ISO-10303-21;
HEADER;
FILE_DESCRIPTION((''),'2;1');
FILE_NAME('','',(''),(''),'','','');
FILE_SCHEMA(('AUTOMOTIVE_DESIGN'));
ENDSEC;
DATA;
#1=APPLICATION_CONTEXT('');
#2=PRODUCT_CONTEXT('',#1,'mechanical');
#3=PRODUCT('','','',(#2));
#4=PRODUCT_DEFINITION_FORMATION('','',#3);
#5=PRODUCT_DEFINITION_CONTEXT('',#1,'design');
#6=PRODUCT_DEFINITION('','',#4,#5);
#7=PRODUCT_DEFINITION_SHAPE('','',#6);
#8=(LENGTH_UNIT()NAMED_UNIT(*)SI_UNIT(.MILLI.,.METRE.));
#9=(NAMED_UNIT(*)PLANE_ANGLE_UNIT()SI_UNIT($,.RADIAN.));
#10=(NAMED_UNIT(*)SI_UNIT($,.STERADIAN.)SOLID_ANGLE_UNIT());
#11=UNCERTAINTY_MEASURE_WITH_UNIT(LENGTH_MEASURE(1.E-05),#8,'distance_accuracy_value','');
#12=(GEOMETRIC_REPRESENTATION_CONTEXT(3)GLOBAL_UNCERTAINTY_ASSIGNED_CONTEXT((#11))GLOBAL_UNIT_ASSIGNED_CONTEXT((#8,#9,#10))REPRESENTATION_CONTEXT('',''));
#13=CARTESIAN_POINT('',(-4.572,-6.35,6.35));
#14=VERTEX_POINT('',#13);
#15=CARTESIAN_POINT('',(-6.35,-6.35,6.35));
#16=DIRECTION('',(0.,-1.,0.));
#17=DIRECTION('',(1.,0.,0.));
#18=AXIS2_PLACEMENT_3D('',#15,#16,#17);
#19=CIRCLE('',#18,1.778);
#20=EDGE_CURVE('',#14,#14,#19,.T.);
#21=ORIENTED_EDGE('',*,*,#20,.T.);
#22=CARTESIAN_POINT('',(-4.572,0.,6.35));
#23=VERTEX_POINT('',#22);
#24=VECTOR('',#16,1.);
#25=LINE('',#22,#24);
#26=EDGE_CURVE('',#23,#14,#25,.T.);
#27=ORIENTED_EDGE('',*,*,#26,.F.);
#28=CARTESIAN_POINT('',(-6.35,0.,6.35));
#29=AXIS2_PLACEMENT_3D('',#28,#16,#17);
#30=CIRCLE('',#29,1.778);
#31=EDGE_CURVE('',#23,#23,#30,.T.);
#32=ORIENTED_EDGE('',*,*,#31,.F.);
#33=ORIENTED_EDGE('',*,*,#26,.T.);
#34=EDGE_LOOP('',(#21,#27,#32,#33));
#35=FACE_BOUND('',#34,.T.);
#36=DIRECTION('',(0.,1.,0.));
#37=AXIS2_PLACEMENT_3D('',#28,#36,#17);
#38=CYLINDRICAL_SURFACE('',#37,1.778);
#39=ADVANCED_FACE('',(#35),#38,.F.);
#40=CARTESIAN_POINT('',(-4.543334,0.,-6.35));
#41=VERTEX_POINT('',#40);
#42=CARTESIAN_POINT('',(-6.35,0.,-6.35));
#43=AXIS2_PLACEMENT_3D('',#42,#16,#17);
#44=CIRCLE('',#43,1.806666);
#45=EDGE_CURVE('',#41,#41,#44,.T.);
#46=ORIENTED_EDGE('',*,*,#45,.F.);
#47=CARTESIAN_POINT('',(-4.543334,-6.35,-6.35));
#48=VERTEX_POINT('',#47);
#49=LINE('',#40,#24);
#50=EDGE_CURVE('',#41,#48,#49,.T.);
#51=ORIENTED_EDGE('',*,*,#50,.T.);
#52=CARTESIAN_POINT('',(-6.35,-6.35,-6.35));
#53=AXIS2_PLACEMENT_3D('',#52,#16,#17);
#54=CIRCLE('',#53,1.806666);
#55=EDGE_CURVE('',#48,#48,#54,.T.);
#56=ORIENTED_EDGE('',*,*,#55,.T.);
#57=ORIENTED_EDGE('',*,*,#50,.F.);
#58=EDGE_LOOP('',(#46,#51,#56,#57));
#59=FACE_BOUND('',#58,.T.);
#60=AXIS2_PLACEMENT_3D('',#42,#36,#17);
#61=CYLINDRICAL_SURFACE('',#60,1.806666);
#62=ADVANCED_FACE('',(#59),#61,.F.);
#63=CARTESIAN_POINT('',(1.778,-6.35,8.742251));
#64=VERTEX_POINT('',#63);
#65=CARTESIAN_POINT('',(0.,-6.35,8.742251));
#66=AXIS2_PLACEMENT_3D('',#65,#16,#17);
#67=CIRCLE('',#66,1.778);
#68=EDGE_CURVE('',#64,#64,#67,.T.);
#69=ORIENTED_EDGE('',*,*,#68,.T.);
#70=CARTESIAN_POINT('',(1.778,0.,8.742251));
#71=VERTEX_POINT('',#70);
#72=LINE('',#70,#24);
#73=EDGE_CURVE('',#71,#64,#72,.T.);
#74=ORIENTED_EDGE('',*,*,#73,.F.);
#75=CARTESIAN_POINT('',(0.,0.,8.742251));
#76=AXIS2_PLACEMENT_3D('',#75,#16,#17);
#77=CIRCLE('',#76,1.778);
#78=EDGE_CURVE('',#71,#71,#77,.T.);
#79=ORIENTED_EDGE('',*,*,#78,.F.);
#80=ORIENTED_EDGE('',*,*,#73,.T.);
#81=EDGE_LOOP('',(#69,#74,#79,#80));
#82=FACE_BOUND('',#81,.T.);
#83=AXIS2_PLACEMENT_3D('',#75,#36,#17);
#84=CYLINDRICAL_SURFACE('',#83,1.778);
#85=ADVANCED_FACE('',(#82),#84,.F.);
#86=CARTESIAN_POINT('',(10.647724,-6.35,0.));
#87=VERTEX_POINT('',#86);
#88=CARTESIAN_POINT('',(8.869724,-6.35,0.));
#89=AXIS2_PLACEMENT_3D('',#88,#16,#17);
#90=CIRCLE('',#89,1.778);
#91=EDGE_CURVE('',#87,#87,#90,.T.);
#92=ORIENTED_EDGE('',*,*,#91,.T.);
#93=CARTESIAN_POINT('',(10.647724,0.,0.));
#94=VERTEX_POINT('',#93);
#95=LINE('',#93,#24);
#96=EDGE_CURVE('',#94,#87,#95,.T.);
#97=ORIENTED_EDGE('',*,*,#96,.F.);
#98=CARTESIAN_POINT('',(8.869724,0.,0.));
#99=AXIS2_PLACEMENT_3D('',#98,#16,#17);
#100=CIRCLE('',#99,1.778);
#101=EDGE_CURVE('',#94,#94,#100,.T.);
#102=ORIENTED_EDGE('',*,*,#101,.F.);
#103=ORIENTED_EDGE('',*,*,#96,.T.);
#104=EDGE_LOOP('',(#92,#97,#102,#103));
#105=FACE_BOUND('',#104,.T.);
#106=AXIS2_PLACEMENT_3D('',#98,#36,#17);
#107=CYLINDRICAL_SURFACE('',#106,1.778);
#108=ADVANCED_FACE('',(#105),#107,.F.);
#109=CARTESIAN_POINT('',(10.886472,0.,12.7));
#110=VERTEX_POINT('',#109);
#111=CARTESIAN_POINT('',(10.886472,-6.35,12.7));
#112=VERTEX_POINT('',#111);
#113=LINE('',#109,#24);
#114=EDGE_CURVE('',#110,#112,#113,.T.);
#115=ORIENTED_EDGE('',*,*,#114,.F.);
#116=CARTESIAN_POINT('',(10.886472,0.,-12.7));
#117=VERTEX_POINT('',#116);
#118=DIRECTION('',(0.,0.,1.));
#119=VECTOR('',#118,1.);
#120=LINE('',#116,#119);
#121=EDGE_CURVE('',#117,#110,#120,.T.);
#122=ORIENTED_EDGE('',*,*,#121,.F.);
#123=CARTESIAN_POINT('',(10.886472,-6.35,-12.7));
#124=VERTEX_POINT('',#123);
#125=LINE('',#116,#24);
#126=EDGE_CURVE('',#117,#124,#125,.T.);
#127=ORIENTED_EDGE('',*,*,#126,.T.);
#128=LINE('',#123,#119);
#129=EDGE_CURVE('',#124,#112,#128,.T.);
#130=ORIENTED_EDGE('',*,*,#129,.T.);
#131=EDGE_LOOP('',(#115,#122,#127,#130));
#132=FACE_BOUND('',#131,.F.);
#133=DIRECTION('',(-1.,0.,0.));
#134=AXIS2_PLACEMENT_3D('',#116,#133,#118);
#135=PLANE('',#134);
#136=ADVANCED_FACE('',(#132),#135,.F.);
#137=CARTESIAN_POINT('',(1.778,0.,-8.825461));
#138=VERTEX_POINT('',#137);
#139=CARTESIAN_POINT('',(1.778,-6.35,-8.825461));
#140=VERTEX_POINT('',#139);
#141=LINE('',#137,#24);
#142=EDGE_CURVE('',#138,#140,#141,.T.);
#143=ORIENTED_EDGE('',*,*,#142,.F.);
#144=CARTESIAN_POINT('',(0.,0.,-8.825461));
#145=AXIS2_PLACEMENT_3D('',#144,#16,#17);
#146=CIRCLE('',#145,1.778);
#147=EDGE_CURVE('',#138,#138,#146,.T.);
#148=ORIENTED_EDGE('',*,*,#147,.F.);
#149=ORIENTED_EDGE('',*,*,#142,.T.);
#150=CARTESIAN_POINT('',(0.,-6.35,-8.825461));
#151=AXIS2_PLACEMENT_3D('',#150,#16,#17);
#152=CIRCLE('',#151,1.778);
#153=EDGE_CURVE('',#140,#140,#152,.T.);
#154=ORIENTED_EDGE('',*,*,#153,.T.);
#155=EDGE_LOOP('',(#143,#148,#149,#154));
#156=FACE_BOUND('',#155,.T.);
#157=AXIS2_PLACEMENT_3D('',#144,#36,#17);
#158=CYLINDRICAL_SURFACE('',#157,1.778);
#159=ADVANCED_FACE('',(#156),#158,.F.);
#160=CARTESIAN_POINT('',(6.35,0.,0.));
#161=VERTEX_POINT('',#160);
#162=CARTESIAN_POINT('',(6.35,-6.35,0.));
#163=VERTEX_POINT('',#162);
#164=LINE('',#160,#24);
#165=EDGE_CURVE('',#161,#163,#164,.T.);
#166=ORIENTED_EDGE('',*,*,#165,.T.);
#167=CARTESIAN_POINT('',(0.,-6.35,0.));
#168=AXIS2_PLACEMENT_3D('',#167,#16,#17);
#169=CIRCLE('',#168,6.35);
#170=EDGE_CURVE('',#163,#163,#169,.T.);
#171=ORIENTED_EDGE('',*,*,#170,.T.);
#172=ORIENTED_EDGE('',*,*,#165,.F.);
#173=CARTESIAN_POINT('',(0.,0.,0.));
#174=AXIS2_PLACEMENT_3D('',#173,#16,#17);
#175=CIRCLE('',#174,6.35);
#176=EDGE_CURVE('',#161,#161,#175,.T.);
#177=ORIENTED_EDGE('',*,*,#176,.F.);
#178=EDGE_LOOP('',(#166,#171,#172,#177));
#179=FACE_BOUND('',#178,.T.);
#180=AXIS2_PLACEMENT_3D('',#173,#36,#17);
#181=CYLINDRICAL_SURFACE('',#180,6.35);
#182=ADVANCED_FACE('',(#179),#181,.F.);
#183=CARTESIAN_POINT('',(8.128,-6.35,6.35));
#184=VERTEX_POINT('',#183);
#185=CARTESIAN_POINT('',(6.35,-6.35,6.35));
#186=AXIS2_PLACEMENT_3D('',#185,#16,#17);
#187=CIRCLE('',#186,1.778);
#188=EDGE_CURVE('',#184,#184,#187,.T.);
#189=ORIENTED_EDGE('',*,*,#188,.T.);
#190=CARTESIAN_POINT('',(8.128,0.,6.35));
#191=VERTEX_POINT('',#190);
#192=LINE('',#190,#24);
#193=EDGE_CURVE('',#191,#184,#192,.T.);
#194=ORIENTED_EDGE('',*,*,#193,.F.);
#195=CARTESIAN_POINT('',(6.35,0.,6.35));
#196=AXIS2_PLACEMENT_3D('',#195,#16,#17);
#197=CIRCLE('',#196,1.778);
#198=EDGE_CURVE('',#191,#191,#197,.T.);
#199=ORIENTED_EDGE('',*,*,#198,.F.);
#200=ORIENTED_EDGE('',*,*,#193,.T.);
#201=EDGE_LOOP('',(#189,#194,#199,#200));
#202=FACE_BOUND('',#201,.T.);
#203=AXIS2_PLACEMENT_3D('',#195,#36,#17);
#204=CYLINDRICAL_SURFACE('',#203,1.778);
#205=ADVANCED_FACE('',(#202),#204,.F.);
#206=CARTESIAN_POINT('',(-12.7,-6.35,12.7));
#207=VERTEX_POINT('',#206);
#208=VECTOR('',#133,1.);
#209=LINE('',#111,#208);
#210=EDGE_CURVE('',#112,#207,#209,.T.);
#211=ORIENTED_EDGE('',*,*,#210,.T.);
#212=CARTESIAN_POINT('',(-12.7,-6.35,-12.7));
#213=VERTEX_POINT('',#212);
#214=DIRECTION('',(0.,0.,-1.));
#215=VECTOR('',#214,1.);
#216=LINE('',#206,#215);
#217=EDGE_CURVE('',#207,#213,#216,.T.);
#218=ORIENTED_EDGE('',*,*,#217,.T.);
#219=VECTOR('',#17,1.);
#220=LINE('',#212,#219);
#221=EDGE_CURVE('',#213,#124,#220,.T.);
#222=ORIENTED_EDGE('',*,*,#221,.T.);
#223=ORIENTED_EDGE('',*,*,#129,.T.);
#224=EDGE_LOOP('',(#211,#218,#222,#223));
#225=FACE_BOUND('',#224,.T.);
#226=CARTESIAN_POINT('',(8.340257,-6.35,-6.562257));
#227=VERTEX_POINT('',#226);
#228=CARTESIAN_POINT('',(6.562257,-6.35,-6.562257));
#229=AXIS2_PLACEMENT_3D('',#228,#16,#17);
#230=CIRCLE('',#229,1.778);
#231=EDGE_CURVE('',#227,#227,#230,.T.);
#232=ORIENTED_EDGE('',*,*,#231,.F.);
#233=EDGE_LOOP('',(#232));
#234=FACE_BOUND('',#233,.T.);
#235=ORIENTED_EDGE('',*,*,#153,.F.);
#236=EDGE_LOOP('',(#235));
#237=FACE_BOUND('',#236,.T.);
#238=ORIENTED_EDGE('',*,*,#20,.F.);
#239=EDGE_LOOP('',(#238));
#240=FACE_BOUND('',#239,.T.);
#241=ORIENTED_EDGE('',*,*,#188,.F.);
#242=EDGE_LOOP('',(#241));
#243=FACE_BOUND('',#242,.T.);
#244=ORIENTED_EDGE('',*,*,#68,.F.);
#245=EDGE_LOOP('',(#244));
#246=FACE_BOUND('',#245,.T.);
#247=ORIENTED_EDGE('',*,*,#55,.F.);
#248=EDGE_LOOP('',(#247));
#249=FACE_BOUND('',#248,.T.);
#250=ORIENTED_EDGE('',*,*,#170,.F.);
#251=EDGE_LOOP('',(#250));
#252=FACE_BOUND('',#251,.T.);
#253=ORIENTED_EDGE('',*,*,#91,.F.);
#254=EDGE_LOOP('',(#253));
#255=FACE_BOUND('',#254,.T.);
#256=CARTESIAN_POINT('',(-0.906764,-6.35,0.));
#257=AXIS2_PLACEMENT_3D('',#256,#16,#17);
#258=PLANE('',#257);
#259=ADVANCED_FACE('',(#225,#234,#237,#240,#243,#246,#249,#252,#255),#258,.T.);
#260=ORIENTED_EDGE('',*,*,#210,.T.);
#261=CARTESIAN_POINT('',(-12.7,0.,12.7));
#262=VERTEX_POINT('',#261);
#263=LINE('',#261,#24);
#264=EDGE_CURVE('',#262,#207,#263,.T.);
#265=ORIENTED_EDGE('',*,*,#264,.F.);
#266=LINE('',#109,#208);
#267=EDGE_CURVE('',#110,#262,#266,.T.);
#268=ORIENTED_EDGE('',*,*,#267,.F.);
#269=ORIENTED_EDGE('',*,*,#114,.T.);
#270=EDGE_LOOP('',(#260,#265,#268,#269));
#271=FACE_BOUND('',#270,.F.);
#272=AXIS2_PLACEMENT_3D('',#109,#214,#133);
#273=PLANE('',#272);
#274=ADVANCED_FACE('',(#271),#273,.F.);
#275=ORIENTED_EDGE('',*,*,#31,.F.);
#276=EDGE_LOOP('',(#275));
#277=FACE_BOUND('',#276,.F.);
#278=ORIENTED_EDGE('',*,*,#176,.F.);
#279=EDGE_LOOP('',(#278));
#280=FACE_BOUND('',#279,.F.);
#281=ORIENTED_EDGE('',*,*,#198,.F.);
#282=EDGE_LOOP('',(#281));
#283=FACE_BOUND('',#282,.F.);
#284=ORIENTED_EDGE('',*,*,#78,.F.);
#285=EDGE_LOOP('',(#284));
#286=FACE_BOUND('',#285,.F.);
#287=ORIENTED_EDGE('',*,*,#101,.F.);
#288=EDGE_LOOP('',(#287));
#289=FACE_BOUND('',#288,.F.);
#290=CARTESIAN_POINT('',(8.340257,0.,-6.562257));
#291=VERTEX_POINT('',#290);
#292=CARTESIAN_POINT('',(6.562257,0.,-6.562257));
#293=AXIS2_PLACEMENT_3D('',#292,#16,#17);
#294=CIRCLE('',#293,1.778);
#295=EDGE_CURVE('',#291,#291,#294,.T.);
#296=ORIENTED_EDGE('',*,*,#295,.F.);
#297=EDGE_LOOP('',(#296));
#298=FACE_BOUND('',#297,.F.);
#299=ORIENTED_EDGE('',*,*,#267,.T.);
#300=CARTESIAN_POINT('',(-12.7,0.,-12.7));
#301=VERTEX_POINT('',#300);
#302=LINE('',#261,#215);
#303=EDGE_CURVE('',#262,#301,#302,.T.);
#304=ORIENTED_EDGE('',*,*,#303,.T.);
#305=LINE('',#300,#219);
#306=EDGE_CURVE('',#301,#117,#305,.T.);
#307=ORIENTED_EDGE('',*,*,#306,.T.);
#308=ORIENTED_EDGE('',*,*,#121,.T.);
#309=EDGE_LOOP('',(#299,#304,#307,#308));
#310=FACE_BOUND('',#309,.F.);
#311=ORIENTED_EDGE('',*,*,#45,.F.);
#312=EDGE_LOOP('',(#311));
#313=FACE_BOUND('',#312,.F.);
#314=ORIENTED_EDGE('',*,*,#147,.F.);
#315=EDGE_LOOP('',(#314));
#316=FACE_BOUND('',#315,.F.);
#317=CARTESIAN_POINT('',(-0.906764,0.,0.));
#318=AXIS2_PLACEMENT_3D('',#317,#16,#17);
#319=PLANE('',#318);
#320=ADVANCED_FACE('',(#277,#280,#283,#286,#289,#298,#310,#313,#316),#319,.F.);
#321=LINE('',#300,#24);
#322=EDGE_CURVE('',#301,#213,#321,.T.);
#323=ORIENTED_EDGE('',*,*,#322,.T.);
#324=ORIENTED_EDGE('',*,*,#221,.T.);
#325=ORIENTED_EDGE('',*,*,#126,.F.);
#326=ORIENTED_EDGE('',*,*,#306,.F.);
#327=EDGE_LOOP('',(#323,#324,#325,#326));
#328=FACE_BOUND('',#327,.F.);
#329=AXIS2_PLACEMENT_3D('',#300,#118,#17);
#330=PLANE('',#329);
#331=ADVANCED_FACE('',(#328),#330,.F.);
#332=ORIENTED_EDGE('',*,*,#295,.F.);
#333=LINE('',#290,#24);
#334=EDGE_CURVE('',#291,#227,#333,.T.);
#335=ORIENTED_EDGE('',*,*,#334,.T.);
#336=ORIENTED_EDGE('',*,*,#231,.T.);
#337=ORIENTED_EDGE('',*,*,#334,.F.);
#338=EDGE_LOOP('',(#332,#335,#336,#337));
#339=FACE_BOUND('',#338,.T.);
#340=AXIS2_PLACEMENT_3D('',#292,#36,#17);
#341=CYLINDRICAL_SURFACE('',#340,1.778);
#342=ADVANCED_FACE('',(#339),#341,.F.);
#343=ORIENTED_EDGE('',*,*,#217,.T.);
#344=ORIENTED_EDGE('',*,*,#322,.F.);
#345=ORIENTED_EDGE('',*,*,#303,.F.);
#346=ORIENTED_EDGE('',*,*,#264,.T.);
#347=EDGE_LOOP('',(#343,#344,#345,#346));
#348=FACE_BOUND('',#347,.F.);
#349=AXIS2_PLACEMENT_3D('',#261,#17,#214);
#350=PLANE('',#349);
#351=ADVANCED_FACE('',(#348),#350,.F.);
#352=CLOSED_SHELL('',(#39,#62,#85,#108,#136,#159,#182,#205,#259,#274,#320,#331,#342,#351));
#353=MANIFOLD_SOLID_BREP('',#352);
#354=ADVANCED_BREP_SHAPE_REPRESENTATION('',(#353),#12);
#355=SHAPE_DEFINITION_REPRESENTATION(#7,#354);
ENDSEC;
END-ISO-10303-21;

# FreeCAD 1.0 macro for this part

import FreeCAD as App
import Part
import Sketcher
Q = App.Units.Quantity


def add_polygon(sketch, points):
    """Adds a closed chain of lines whose ends are joined by coincident constraints."""
    first, n = sketch.GeometryCount, len(points)
    for a, b in zip(points, points[1:] + points[:1]):
        sketch.addGeometry(Part.LineSegment(App.Vector(*a, 0), App.Vector(*b, 0)), False)
    for i in range(n):
        sketch.addConstraint(Sketcher.Constraint("Coincident", first + i, 2, first + (i + 1) % n, 1))

doc = App.newDocument("Part")
body = doc.addObject("PartDesign::Body", "Body")

sketch1 = body.newObject("Sketcher::SketchObject", "Sketch")
sketch1.AttachmentSupport = (doc.getObject("XZ_Plane"), [""])
sketch1.MapMode = "FlatFace"
add_polygon(sketch1, [(-12.7, 12.7), (-12.7, -12.7), (10.9, -12.7), (10.9, 12.7)])
sketch1.addGeometry(Part.Circle(App.Vector(-6.3, -6.3, 0), App.Vector(0, 0, 1), 1.8), False)
sketch1.addGeometry(Part.Circle(App.Vector(0, -8.8, 0), App.Vector(0, 0, 1), 1.8), False)
sketch1.addGeometry(Part.Circle(App.Vector(6.6, -6.6, 0), App.Vector(0, 0, 1), 1.8), False)
sketch1.addGeometry(Part.Circle(App.Vector(0, 0, 0), App.Vector(0, 0, 1), 6.3), False)
sketch1.addGeometry(Part.Circle(App.Vector(-6.3, 6.3, 0), App.Vector(0, 0, 1), 1.8), False)
sketch1.addGeometry(Part.Circle(App.Vector(0, 8.7, 0), App.Vector(0, 0, 1), 1.8), False)
sketch1.addGeometry(Part.Circle(App.Vector(8.9, 0, 0), App.Vector(0, 0, 1), 1.8), False)
sketch1.addGeometry(Part.Circle(App.Vector(6.3, 6.3, 0), App.Vector(0, 0, 1), 1.8), False)
sketch1.addConstraint([
    Sketcher.Constraint("Vertical", 0),
    Sketcher.Constraint("Horizontal", 1),
    Sketcher.Constraint("Vertical", 2),
    Sketcher.Constraint("Horizontal", 3),
    Sketcher.Constraint("Coincident", 7, 3, -1, 1),
    Sketcher.Constraint("Equal", 5, 6),
    Sketcher.Constraint("Equal", 6, 8),
    Sketcher.Constraint("Equal", 8, 9),
    Sketcher.Constraint("Equal", 9, 10),
    Sketcher.Constraint("Equal", 10, 11),
    Sketcher.Constraint("Symmetric", 4, 3, 11, 3, -1, 1),
    Sketcher.Constraint("Symmetric", 8, 3, 11, 3, -2),
    Sketcher.Constraint("PointOnObject", 5, 3, -2),
    Sketcher.Constraint("PointOnObject", 9, 3, -2),
    Sketcher.Constraint("PointOnObject", 10, 3, -1),
    Sketcher.Constraint("Diameter", 7, Q("0.5 in")),
    Sketcher.Constraint("Diameter", 5, Q("0.14 in")),
    Sketcher.Constraint("DistanceY", 0, 2, 0, 1, Q("1 in")),
    Sketcher.Constraint("DistanceX", 0, 2, -1, 1, Q("0.5 in")),
    Sketcher.Constraint("DistanceY", 0, 2, -1, 1, Q("0.5 in")),
    Sketcher.Constraint("DistanceY", 4, 3, 8, 3, Q("0.5 in")),
    Sketcher.Constraint("DistanceX", 8, 3, 11, 3, Q("0.5 in")),
    Sketcher.Constraint("Diameter", 4, Q("3.613332 mm")),
    Sketcher.Constraint("DistanceX", 1, 1, 1, 2, Q("23.586472 mm")),
    Sketcher.Constraint("DistanceY", 5, 3, -1, 1, Q("8.825461 mm")),
    Sketcher.Constraint("DistanceY", -1, 1, 9, 3, Q("8.742251 mm")),
    Sketcher.Constraint("DistanceX", -1, 1, 6, 3, Q("6.562257 mm")),
    Sketcher.Constraint("DistanceY", 6, 3, -1, 1, Q("6.562257 mm")),
    Sketcher.Constraint("DistanceX", -1, 1, 10, 3, Q("8.869724 mm")),
])
pad1 = body.newObject("PartDesign::Pad", "Pad")
pad1.Profile = sketch1
pad1.Length = Q("0.25 in")

doc.recompute()
